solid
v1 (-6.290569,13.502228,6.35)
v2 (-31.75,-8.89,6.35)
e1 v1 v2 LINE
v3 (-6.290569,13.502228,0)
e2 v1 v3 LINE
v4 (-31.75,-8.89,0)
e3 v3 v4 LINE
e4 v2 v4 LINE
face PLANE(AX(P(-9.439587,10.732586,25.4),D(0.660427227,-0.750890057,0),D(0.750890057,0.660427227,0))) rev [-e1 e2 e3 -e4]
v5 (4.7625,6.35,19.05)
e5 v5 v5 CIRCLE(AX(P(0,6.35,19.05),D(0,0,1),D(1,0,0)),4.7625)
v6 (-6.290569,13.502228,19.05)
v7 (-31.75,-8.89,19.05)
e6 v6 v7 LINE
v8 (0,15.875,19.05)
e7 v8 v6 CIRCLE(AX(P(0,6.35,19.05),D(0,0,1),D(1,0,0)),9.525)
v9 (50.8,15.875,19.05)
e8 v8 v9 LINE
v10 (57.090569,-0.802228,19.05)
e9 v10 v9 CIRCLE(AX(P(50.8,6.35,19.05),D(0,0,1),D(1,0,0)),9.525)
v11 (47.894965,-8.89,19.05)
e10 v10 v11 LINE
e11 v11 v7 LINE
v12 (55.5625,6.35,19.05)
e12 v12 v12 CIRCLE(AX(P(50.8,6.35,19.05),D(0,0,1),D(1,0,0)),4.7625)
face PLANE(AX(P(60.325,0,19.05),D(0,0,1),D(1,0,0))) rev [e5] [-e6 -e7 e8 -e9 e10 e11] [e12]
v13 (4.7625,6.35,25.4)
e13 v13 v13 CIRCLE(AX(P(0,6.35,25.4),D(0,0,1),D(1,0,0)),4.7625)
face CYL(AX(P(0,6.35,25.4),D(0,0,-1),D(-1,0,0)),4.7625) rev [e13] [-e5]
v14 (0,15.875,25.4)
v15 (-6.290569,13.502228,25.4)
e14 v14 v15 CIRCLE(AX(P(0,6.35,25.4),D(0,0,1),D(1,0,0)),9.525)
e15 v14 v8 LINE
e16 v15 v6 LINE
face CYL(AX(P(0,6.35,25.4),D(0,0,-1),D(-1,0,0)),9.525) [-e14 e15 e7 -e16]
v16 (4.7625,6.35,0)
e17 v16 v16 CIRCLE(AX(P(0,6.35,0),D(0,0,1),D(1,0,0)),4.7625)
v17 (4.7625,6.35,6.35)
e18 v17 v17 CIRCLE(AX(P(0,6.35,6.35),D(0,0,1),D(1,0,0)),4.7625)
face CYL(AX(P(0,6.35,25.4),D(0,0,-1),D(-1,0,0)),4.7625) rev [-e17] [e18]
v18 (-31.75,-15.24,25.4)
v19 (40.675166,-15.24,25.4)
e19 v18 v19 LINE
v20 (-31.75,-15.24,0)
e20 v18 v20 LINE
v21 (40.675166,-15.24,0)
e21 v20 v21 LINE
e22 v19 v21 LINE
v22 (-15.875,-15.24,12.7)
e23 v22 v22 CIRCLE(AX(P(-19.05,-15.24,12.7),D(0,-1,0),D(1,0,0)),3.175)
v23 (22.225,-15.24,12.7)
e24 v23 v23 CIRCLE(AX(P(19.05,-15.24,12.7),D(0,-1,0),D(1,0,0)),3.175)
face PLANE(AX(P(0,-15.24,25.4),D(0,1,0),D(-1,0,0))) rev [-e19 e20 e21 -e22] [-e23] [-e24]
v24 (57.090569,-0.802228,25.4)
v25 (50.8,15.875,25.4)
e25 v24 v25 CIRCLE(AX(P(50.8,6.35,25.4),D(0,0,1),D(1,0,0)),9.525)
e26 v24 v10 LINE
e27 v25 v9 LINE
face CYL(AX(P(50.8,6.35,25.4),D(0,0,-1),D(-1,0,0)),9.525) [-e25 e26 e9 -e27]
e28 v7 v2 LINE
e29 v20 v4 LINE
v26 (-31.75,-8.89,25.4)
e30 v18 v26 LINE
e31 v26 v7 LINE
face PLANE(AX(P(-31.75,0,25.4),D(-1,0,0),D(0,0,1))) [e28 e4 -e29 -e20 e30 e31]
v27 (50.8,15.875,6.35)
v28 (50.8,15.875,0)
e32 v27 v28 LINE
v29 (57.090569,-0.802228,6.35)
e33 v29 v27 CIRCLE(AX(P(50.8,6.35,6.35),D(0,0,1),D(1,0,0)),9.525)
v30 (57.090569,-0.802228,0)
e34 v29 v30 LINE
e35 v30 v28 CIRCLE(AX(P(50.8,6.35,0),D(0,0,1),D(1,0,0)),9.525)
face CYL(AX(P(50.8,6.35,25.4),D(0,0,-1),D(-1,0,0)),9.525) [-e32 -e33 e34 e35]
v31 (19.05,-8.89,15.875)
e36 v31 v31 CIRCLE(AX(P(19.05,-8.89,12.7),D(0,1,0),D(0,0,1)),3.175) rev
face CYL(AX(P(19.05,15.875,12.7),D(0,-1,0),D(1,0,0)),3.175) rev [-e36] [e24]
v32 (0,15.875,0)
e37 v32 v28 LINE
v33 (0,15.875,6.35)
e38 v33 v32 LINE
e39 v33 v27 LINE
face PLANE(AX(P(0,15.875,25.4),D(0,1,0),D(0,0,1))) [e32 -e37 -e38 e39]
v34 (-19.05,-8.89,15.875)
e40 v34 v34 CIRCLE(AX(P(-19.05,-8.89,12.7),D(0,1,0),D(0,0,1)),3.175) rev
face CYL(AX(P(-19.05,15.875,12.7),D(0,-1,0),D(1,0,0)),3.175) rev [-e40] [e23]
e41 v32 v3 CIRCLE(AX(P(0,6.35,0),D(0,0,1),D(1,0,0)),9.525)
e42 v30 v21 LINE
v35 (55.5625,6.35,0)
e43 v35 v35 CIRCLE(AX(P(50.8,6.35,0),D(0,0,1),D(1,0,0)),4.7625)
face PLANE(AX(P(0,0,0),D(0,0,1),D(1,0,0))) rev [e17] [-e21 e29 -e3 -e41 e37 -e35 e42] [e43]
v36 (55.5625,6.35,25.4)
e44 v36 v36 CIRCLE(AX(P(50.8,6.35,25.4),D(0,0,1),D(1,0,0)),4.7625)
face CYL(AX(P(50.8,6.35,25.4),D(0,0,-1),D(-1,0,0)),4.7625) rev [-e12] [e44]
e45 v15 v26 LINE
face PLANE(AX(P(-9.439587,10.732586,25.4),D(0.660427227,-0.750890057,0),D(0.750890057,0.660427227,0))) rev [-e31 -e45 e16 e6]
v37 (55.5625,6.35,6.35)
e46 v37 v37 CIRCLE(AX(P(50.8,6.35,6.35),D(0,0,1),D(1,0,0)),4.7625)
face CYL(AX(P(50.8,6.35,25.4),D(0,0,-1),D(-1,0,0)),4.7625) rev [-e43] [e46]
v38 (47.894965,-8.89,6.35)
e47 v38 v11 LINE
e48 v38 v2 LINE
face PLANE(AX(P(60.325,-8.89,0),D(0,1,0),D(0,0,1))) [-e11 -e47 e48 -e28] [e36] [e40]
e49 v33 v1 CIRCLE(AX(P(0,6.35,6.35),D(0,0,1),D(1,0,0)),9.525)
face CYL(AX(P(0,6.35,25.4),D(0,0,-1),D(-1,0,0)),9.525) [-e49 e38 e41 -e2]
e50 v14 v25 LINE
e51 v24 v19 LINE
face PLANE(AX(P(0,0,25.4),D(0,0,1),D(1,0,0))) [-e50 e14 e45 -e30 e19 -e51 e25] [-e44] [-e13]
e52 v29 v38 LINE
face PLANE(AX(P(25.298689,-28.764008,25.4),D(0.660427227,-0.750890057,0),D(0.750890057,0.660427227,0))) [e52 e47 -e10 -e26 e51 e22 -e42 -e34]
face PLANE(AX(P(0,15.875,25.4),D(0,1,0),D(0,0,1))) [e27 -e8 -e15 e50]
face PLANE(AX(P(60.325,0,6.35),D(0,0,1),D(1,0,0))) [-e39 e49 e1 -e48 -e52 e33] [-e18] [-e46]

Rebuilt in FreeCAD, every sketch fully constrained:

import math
import FreeCAD as App
import Part
import Sketcher

V = App.Vector
Q = App.Units.Quantity


def add_polygon(sketch, points):
    """Adds a closed chain of lines whose ends are joined by coincident constraints."""
    first, n = sketch.GeometryCount, len(points)
    for a, b in zip(points, points[1:] + points[:1]):
        sketch.addGeometry(Part.LineSegment(App.Vector(*a, 0), App.Vector(*b, 0)), False)
    for i in range(n):
        sketch.addConstraint(Sketcher.Constraint("Coincident", first + i, 2, first + (i + 1) % n, 1))

doc = App.newDocument("Part")
body = doc.addObject("PartDesign::Body", "Body")

sketch1 = body.newObject("Sketcher::SketchObject", "Sketch")
sketch1.AttachmentSupport = (doc.getObject("XY_Plane"), [""])
sketch1.MapMode = "FlatFace"
sketch1.addGeometry([
    Part.LineSegment(V(50.8, 15.875, 0), V(0, 15.875, 0)),
    Part.ArcOfCircle(Part.Circle(V(0, 6.35, 0), V(0, 0, 1), 9.525), math.radians(90), math.radians(131.332464)),
    Part.LineSegment(V(-6.290569, 13.502228, 0), V(-31.75, -8.89, 0)),
    Part.LineSegment(V(-31.75, -8.89, 0), V(-31.75, -15.24, 0)),
    Part.LineSegment(V(-31.75, -15.24, 0), V(40.675166, -15.24, 0)),
    Part.LineSegment(V(40.675166, -15.24, 0), V(57.090569, -0.802228, 0)),
    Part.ArcOfCircle(Part.Circle(V(50.8, 6.35, 0), V(0, 0, 1), 9.525), math.radians(-48.667536), math.radians(90)),
    Part.Circle(V(0, 6.35, 0), V(0, 0, 1), 4.7625),
    Part.Circle(V(50.8, 6.35, 0), V(0, 0, 1), 4.7625),
], False)
sketch1.addConstraint([
    Sketcher.Constraint("Tangent", 0, 2, 1, 1),
    Sketcher.Constraint("Tangent", 1, 2, 2, 1),
    Sketcher.Constraint("Coincident", 2, 2, 3, 1),
    Sketcher.Constraint("Coincident", 3, 2, 4, 1),
    Sketcher.Constraint("Coincident", 4, 2, 5, 1),
    Sketcher.Constraint("Tangent", 5, 2, 6, 1),
    Sketcher.Constraint("Tangent", 6, 2, 0, 1),
    Sketcher.Constraint("Horizontal", 0),
    Sketcher.Constraint("Vertical", 3),
    Sketcher.Constraint("Horizontal", 4),
    Sketcher.Constraint("Coincident", 7, 3, 1, 3),
    Sketcher.Constraint("Coincident", 8, 3, 6, 3),
    Sketcher.Constraint("Equal", 1, 6),
    Sketcher.Constraint("Equal", 7, 8),
    Sketcher.Constraint("PointOnObject", 1, 3, -2),
    Sketcher.Constraint("Parallel", 2, 5),
    Sketcher.Constraint("DistanceX", 0, 2, 0, 1, Q("2 in")),
    Sketcher.Constraint("Diameter", 7, Q("0.375 in")),
    Sketcher.Constraint("Radius", 1, Q("0.375 in")),
    Sketcher.Constraint("DistanceY", 3, 2, 3, 1, Q("0.25 in")),
    Sketcher.Constraint("DistanceY", 3, 2, -1, 1, Q("0.6 in")),
    Sketcher.Constraint("DistanceY", 2, 2, 1, 3, Q("0.6 in")),
    Sketcher.Constraint("DistanceX", 2, 2, -1, 1, Q("1.25 in")),
])
pad1 = body.newObject("PartDesign::Pad", "Pad")
pad1.Profile = sketch1
pad1.Length = Q("1 in")

sketch2 = body.newObject("Sketcher::SketchObject", "Sketch001")
sketch2.AttachmentSupport = (doc.getObject("XZ_Plane"), [""])
sketch2.MapMode = "FlatFace"
sketch2.AttachmentOffset = App.Placement(V(0, 0, 0.6 * 25.4), App.Rotation())
sketch2.addGeometry([
    Part.Circle(V(19.05, 12.7, 0), V(0, 0, 1), 3.175),
    Part.Circle(V(-19.05, 12.7, 0), V(0, 0, 1), 3.175),
], False)
sketch2.addConstraint([
    Sketcher.Constraint("Equal", 0, 1),
    Sketcher.Constraint("Symmetric", 0, 3, 1, 3, -2),
    Sketcher.Constraint("Diameter", 0, Q("0.25 in")),
    Sketcher.Constraint("DistanceY", -1, 1, 0, 3, Q("0.5 in")),
    Sketcher.Constraint("DistanceX", 1, 3, 0, 3, Q("1.5 in")),
])
pocket1 = body.newObject("PartDesign::Pocket", "Pocket")
pocket1.Profile = sketch2
pocket1.Type = "ThroughAll"

sketch3 = body.newObject("Sketcher::SketchObject", "Sketch002")
sketch3.AttachmentSupport = (doc.getObject("YZ_Plane"), [""])
sketch3.MapMode = "FlatFace"
sketch3.AttachmentOffset = App.Placement(V(0, 0, -1.25 * 25.4), App.Rotation())
add_polygon(sketch3, [(19.915496, 6.35), (-8.89, 6.35), (-8.89, 19.05), (19.915496, 19.05)])
sketch3.addConstraint([
    Sketcher.Constraint("Horizontal", 0),
    Sketcher.Constraint("Vertical", 1),
    Sketcher.Constraint("Horizontal", 2),
    Sketcher.Constraint("Vertical", 3),
    Sketcher.Constraint("DistanceY", 1, 1, 1, 2, Q("0.5 in")),
    Sketcher.Constraint("DistanceX", 0, 2, -1, 1, Q("0.35 in")),
    Sketcher.Constraint("DistanceY", -1, 1, 0, 2, Q("0.25 in")),
    Sketcher.Constraint("DistanceX", 0, 2, 0, 1, 28.805496),
])
pocket2 = body.newObject("PartDesign::Pocket", "Pocket001")
pocket2.Profile = sketch3
pocket2.Type = "ThroughAll"
pocket2.Reversed = True

doc.recompute()
